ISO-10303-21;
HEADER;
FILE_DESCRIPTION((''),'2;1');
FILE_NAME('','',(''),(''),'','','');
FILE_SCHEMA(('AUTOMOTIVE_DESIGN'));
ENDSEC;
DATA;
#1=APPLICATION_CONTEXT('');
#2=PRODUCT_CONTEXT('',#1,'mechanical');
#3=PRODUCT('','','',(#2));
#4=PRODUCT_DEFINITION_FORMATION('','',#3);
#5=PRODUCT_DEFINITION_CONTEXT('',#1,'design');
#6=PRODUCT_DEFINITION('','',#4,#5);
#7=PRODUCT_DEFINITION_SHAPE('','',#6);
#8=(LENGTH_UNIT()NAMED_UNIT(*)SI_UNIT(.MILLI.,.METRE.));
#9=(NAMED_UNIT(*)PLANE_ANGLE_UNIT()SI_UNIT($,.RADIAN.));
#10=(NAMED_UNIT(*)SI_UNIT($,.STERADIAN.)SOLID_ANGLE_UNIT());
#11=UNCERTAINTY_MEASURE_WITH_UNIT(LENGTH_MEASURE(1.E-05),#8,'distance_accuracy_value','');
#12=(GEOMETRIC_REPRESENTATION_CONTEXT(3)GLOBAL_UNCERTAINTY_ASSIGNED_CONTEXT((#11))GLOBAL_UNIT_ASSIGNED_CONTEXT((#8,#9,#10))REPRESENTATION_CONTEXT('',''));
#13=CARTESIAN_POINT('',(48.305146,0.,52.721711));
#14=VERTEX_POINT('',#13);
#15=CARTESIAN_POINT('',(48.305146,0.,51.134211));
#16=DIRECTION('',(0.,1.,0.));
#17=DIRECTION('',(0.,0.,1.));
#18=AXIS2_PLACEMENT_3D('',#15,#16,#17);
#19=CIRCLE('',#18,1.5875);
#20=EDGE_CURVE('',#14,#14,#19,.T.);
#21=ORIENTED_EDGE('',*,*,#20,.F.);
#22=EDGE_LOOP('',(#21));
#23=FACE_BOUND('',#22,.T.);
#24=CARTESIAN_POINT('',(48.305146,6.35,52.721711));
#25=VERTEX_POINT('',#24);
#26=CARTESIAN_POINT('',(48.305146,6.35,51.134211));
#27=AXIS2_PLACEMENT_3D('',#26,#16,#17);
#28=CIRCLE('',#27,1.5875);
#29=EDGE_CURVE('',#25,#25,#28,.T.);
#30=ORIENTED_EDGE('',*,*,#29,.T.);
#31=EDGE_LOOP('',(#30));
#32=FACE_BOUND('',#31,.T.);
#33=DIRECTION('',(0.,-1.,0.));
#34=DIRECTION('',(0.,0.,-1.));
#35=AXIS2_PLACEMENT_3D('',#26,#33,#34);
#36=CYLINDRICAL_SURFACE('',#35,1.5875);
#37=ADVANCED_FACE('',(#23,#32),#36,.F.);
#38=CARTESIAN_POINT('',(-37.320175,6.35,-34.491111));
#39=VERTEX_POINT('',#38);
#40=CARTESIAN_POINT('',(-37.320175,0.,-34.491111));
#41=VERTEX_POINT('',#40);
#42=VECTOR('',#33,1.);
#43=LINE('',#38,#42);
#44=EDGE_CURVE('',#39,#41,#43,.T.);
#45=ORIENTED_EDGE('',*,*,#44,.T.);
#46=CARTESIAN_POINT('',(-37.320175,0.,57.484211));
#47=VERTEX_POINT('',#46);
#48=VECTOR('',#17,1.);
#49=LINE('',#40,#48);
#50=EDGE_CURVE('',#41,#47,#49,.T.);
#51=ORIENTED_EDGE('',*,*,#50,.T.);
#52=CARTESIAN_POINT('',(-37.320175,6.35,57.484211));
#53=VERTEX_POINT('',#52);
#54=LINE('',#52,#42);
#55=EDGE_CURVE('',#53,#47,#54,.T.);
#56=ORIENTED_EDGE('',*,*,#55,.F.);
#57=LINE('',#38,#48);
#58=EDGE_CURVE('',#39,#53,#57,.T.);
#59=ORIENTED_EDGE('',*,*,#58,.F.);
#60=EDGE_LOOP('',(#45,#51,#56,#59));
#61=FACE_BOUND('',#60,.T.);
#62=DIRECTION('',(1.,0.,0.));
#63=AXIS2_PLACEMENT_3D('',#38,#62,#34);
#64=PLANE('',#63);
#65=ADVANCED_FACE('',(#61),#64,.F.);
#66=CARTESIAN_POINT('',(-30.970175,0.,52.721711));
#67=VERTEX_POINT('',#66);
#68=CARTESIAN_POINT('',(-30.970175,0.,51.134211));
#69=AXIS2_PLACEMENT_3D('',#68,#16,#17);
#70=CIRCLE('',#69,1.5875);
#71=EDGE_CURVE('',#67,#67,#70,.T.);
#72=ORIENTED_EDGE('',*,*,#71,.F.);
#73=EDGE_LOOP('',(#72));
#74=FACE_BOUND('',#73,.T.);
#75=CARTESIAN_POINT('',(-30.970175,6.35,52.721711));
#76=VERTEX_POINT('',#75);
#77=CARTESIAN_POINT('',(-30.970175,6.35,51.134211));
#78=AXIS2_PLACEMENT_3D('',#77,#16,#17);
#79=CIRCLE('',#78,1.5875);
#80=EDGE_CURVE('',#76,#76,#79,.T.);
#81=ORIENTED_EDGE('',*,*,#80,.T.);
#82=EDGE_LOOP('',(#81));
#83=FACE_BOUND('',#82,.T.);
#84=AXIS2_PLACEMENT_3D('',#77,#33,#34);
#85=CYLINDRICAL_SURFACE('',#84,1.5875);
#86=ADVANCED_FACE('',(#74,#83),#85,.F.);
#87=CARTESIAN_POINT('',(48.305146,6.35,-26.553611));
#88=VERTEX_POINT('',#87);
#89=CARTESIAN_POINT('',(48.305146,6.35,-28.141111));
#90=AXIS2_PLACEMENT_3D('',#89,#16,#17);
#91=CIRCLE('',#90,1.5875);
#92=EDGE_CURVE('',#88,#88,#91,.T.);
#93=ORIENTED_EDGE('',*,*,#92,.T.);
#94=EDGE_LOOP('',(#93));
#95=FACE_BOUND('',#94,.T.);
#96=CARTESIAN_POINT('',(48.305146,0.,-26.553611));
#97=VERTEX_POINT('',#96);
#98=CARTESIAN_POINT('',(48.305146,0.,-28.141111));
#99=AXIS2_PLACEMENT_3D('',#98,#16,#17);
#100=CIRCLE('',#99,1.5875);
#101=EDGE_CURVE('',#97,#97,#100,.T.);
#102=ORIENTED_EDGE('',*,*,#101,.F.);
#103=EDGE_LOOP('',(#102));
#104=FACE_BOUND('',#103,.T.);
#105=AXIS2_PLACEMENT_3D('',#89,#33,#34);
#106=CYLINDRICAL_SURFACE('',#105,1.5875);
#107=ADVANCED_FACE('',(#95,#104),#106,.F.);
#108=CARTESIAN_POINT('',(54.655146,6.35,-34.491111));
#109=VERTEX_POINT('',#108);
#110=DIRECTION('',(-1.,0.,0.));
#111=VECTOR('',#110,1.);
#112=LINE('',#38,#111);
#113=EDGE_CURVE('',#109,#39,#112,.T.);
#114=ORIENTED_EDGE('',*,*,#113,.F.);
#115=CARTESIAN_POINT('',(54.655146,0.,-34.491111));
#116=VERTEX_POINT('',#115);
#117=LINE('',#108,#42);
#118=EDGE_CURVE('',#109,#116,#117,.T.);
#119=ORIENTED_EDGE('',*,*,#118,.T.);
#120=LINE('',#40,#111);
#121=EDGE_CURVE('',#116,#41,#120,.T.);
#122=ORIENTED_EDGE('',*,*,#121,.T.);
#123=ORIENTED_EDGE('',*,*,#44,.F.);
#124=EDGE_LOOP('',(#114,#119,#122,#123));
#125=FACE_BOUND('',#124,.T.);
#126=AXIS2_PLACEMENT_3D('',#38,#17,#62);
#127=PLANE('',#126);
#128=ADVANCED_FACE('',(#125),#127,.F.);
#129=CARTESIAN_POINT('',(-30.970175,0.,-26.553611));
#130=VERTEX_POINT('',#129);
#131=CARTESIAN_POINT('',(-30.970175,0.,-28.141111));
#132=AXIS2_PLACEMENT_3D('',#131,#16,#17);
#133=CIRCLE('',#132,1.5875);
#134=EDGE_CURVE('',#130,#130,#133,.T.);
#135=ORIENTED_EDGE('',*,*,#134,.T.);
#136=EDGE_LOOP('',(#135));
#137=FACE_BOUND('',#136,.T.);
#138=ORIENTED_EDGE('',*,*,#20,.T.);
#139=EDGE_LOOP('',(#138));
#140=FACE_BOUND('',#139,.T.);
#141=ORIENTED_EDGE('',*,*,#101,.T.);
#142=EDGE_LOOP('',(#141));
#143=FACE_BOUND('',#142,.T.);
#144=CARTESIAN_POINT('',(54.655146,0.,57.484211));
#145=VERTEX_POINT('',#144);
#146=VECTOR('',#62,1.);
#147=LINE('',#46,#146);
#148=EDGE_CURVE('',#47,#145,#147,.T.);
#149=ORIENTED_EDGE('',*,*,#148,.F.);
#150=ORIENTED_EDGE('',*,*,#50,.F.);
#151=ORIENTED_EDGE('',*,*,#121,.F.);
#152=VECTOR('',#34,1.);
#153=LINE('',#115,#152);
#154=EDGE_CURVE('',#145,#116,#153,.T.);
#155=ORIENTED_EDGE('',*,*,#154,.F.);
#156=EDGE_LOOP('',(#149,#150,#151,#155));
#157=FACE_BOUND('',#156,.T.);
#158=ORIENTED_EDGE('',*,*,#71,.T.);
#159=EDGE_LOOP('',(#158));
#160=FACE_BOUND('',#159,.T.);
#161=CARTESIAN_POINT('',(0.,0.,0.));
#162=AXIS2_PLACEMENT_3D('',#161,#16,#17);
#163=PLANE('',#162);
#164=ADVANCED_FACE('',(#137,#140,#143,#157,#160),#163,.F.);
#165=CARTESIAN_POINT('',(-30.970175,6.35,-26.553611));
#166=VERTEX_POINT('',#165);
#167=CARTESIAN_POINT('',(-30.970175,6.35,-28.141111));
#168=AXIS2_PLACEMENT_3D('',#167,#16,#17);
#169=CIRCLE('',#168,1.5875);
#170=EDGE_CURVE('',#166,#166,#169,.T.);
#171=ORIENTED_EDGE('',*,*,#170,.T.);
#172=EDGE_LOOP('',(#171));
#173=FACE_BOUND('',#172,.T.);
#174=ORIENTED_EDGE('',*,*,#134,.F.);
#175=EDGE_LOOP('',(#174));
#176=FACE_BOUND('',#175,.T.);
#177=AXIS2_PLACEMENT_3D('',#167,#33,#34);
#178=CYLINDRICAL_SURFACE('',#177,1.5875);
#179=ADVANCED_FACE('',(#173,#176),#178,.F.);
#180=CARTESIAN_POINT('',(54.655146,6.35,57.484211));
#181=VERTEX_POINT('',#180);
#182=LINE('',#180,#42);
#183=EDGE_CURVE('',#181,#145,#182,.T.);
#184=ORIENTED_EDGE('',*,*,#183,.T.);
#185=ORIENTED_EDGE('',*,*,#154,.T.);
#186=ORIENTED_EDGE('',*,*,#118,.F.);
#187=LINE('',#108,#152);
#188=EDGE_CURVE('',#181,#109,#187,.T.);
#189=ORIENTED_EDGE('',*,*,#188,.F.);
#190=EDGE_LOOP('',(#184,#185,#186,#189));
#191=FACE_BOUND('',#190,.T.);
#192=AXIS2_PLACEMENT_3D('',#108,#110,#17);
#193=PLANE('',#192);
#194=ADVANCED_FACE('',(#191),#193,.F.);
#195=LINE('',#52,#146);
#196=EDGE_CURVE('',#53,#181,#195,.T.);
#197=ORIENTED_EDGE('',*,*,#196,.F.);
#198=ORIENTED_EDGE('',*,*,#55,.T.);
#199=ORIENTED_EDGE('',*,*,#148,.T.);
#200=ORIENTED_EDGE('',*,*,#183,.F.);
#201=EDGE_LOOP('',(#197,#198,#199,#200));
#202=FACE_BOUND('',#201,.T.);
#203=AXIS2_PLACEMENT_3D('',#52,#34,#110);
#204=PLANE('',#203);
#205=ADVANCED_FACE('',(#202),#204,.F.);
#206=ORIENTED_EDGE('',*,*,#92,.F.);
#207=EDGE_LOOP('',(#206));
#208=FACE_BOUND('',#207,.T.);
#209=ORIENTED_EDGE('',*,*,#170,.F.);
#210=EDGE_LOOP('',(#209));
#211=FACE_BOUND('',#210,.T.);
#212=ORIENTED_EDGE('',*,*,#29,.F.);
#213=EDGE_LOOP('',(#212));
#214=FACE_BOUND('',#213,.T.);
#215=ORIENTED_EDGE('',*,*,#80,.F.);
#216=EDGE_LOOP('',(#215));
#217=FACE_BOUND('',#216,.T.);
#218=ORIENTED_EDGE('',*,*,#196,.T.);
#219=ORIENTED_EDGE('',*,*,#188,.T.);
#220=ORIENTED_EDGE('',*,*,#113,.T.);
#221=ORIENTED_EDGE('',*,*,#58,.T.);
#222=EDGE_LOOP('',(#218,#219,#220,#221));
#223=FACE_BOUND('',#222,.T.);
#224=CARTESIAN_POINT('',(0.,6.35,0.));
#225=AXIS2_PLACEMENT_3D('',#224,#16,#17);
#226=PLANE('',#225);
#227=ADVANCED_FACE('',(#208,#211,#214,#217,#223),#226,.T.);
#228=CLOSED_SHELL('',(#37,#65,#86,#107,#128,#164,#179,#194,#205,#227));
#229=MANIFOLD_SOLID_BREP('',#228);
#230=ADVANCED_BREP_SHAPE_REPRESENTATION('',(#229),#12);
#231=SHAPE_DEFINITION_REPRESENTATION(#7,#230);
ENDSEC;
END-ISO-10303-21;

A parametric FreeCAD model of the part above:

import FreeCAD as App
import Part
import Sketcher
from FreeCAD import Vector
Q = App.Units.Quantity

doc = App.newDocument("Part")
body = doc.addObject("PartDesign::Body", "Body")

# Sketch on XZ plane
sketch1 = body.newObject("Sketcher::SketchObject", "Sketch")
sketch1.AttachmentSupport = (doc.getObject("XZ_Plane"), [""])
sketch1.MapMode = "FlatFace"
sketch1.addGeometry([
    Part.LineSegment(Vector(-37.320175, -34.491111, 0), Vector(-37.320175, 57.484211, 0)),  # 0
    Part.LineSegment(Vector(-37.320175, 57.484211, 0), Vector(54.655146, 57.484211, 0)),  # 1
    Part.LineSegment(Vector(54.655146, 57.484211, 0), Vector(54.655146, -34.491111, 0)),  # 2
    Part.LineSegment(Vector(54.655146, -34.491111, 0), Vector(-37.320175, -34.491111, 0)),  # 3
    Part.Circle(Vector(-30.970175, 51.134211, 0), Vector(0, 0, 1), 1.5875),  # 4
    Part.Circle(Vector(48.305146, 51.134211, 0), Vector(0, 0, 1), 1.5875),  # 5
    Part.Circle(Vector(-30.970175, -28.141111, 0), Vector(0, 0, 1), 1.5875),  # 6
    Part.Circle(Vector(48.305146, -28.141111, 0), Vector(0, 0, 1), 1.5875),  # 7
], False)
sketch1.addConstraint([
    Sketcher.Constraint("Coincident", 0, 2, 1, 1),
    Sketcher.Constraint("Coincident", 1, 2, 2, 1),
    Sketcher.Constraint("Coincident", 2, 2, 3, 1),
    Sketcher.Constraint("Coincident", 3, 2, 0, 1),
    Sketcher.Constraint("Vertical", 0),
    Sketcher.Constraint("Horizontal", 1),
    Sketcher.Constraint("Vertical", 2),
    Sketcher.Constraint("Horizontal", 3),
    Sketcher.Constraint("Equal", 4, 5),
    Sketcher.Constraint("Equal", 5, 6),
    Sketcher.Constraint("Equal", 6, 7),
    Sketcher.Constraint("Horizontal", 4, 3, 5, 3),
    Sketcher.Constraint("Horizontal", 6, 3, 7, 3),
    Sketcher.Constraint("Vertical", 4, 3, 6, 3),
    Sketcher.Constraint("Vertical", 5, 3, 7, 3),
    Sketcher.Constraint("Equal", 3, 0),
    Sketcher.Constraint("Diameter", 4, Q("0.125 in")),
    Sketcher.Constraint("DistanceX", 0, 2, 4, 3, Q("0.25 in")),
    Sketcher.Constraint("DistanceY", 4, 3, 0, 2, Q("0.25 in")),
    Sketcher.Constraint("DistanceX", 5, 3, 1, 2, Q("0.25 in")),
    Sketcher.Constraint("DistanceY", 2, 2, 7, 3, Q("0.25 in")),
    Sketcher.Constraint("DistanceX", 1, 1, 1, 2, Q("91.975322 mm")),
    Sketcher.Constraint("DistanceY", -1, 1, 4, 3, Q("51.134211 mm")),
    Sketcher.Constraint("DistanceX", 4, 3, -1, 1, Q("30.970175 mm")),
])
pad1 = body.newObject("PartDesign::Pad", "Pad")
pad1.Profile = sketch1
pad1.Length = Q("0.25 in")
pad1.Reversed = True

doc.recompute()
